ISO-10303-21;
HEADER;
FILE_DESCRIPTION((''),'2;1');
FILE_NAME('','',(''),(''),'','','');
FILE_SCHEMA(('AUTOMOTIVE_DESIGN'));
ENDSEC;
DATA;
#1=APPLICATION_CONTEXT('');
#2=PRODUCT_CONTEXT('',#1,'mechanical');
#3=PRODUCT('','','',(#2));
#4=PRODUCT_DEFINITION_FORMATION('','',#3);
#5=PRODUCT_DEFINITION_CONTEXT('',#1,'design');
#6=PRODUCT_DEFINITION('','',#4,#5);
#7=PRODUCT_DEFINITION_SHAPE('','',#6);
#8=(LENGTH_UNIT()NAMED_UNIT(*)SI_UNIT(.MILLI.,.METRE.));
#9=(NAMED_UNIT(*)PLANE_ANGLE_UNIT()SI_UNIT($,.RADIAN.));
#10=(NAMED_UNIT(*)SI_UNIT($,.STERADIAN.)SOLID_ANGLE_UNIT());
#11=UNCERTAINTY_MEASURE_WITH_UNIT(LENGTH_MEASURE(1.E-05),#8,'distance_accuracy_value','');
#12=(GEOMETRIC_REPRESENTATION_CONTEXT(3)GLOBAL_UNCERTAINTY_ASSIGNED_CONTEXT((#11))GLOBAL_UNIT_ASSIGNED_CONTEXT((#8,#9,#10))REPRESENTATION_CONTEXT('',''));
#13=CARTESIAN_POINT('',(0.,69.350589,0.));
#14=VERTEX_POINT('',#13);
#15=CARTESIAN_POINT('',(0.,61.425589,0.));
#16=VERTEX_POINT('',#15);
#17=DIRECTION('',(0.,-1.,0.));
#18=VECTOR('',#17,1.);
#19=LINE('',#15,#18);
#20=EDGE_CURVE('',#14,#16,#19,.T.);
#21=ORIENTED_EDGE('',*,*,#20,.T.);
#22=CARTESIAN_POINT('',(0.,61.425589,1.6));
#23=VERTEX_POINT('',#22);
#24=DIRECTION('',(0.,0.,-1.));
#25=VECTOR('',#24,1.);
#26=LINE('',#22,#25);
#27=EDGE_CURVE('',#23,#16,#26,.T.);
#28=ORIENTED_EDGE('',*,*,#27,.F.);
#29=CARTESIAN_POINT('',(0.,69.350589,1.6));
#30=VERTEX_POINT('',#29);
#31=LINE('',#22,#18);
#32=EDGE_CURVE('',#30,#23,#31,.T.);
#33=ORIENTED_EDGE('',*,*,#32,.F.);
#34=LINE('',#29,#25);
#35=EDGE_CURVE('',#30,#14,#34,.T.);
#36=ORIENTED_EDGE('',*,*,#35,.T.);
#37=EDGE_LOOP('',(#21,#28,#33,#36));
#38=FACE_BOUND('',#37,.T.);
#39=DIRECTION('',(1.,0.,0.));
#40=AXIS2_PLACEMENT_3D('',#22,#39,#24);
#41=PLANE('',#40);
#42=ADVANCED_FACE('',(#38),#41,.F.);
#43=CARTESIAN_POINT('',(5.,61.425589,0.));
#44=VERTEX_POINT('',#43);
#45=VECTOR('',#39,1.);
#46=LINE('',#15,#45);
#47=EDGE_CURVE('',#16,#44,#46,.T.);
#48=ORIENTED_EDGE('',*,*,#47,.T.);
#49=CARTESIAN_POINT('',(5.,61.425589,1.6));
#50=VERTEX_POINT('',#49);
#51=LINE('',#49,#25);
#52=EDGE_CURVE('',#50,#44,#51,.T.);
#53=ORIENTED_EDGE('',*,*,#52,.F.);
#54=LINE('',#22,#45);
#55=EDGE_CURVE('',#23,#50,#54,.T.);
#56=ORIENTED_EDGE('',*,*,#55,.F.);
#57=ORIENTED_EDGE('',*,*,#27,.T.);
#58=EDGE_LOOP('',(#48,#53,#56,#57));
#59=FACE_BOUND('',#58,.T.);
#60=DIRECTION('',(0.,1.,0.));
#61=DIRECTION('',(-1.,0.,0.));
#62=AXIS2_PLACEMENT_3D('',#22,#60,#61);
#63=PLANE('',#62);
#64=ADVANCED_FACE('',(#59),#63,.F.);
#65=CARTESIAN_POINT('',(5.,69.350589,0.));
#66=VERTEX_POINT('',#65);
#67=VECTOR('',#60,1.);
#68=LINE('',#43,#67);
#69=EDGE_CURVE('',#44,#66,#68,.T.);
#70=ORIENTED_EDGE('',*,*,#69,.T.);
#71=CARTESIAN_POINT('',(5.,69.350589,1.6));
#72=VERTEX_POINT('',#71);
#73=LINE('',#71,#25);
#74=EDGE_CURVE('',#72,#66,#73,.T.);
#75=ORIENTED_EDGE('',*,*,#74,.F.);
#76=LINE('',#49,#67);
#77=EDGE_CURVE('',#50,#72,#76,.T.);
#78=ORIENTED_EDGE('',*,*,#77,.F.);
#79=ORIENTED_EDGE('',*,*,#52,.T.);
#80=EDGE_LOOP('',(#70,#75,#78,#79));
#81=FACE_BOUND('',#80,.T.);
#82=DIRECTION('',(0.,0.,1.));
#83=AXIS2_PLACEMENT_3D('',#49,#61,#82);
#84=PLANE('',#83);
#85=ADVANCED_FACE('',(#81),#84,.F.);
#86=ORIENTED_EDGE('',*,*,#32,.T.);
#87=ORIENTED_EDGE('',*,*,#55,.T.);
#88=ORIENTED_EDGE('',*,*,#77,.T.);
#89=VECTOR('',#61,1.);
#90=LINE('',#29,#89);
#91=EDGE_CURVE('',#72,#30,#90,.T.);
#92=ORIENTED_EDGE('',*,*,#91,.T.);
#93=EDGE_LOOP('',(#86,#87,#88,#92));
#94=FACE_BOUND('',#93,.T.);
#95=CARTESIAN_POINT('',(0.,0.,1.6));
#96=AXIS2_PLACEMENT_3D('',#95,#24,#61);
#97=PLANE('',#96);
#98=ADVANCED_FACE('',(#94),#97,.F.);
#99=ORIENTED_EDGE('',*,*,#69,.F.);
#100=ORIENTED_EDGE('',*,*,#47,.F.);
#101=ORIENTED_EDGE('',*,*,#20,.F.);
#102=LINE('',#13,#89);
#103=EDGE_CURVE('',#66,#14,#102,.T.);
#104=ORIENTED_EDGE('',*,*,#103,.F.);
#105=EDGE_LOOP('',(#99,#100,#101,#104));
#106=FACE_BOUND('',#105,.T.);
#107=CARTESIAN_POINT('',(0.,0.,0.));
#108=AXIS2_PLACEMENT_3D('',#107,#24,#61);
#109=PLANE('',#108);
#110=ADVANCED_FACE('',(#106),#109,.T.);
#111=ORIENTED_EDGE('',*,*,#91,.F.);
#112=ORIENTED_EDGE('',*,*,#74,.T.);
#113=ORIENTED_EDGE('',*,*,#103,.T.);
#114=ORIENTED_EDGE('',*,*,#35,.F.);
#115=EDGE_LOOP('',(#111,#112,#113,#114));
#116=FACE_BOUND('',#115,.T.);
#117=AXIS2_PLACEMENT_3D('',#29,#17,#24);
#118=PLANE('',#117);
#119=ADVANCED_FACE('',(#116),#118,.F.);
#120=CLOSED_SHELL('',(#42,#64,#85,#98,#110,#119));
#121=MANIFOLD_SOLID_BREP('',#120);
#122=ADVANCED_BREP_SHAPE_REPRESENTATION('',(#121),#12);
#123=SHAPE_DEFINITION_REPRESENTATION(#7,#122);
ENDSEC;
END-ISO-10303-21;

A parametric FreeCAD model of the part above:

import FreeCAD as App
import Part
import Sketcher

V = App.Vector
Q = App.Units.Quantity

doc = App.newDocument("Part")
body = doc.addObject("PartDesign::Body", "Body")

sketch1 = doc.addObject("Sketcher::SketchObject", "Sketch")
body.addObject(sketch1)
sketch1.AttachmentSupport = (doc.XY_Plane, [""])
sketch1.MapMode = "FlatFace"
sketch1.addGeometry(Part.LineSegment(V(0, 69, 0), V(0, 61, 0)), False)
sketch1.addGeometry(Part.LineSegment(V(0, 61, 0), V(5, 61, 0)), False)
sketch1.addGeometry(Part.LineSegment(V(5, 61, 0), V(5, 69, 0)), False)
sketch1.addGeometry(Part.LineSegment(V(5, 69, 0), V(0, 69, 0)), False)
sketch1.addConstraint(Sketcher.Constraint("Coincident", 0, 2, 1, 1))
sketch1.addConstraint(Sketcher.Constraint("Coincident", 1, 2, 2, 1))
sketch1.addConstraint(Sketcher.Constraint("Coincident", 2, 2, 3, 1))
sketch1.addConstraint(Sketcher.Constraint("Coincident", 3, 2, 0, 1))
sketch1.addConstraint(Sketcher.Constraint("Vertical", 0))
sketch1.addConstraint(Sketcher.Constraint("Horizontal", 1))
sketch1.addConstraint(Sketcher.Constraint("Vertical", 2))
sketch1.addConstraint(Sketcher.Constraint("Horizontal", 3))
sketch1.addConstraint(Sketcher.Constraint("PointOnObject", 0, 2, -2))
sketch1.addConstraint(Sketcher.Constraint("DistanceX", 1, 1, 1, 2, Q("5 mm")))
sketch1.addConstraint(Sketcher.Constraint("DistanceY", 0, 2, 0, 1, Q("7.925 mm")))
sketch1.addConstraint(Sketcher.Constraint("DistanceY", -1, 1, 0, 2, Q("61.425589 mm")))
pad1 = doc.addObject("PartDesign::Pad", "Pad")
body.addObject(pad1)
pad1.Profile = sketch1
pad1.Length = 1.6

doc.recompute()
